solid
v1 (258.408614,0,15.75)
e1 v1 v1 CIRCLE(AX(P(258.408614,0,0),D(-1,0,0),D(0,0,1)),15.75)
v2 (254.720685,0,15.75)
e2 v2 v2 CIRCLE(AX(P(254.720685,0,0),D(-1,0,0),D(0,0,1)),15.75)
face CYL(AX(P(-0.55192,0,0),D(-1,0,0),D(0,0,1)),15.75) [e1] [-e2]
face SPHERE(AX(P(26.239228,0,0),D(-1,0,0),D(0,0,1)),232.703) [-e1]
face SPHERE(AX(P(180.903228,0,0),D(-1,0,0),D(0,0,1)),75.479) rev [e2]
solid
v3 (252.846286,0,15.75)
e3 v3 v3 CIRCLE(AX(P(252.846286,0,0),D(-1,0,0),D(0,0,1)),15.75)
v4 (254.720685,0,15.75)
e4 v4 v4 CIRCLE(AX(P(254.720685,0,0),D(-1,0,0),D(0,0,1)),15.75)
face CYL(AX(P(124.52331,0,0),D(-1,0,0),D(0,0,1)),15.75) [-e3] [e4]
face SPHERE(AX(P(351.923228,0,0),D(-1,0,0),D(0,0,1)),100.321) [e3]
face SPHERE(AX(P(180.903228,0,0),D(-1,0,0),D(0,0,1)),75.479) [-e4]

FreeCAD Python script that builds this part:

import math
import FreeCAD as App
import Part
import Sketcher
from FreeCAD import Vector

doc = App.newDocument("Part")
body = doc.addObject("PartDesign::Body", "Body")

sketch1 = body.newObject("Sketcher::SketchObject", "Sketch")
sketch1.AttachmentSupport = (doc.getObject("XZ_Plane"), [""])
sketch1.MapMode = "FlatFace"
sketch1.addGeometry([
    Part.ArcOfCircle(Part.Circle(Vector(351.9, 0, 0), Vector(0, 0, 1), 100.3), math.radians(180), math.radians(189.03)),
    Part.LineSegment(Vector(251.6, 0, 0), Vector(256.4, 0, 0)),
    Part.ArcOfCircle(Part.Circle(Vector(180.9, 0, 0), Vector(0, 0, 1), 75.5), math.radians(-12.04), math.radians(0)),
    Part.LineSegment(Vector(254.7, -15.8, 0), Vector(252.8, -15.8, 0)),
], False)
sketch1.addConstraint([
    Sketcher.Constraint("Coincident", 0, 1, 1, 1),
    Sketcher.Constraint("Coincident", 1, 2, 2, 2),
    Sketcher.Constraint("Coincident", 2, 1, 3, 1),
    Sketcher.Constraint("Coincident", 3, 2, 0, 2),
    Sketcher.Constraint("Horizontal", 1),
    Sketcher.Constraint("Horizontal", 3),
    Sketcher.Constraint("PointOnObject", 0, 3, -1),
    Sketcher.Constraint("PointOnObject", 2, 3, -1),
    Sketcher.Constraint("PointOnObject", 0, 1, -1),
    Sketcher.Constraint("Radius", 0, 100.321),
    Sketcher.Constraint("Radius", 2, 75.479),
    Sketcher.Constraint("DistanceX", 1, 1, 1, 2, 4.78),
    Sketcher.Constraint("DistanceY", 2, 1, -1, 1, 15.75),
    Sketcher.Constraint("DistanceX", -1, 1, 0, 3, 351.923228),
])
revolution = body.newObject("PartDesign::Revolution", "Revolution")
revolution.Profile = sketch1
revolution.ReferenceAxis = (sketch1, ["H_Axis"])
revolution.Angle = 360
body2 = doc.addObject("PartDesign::Body", "Body001")

sketch2 = body2.newObject("Sketcher::SketchObject", "Sketch001")
sketch2.AttachmentSupport = (doc.getObject("XZ_Plane001"), [""])
sketch2.MapMode = "FlatFace"
sketch2.addGeometry([
    Part.LineSegment(Vector(258.4, -15.8, 0), Vector(254.7, -15.8, 0)),
    Part.ArcOfCircle(Part.Circle(Vector(180.9, 0, 0), Vector(0, 0, 1), 75.5), math.radians(-12.04), math.radians(0)),
    Part.LineSegment(Vector(256.4, 0, 0), Vector(258.9, 0, 0)),
    Part.ArcOfCircle(Part.Circle(Vector(26.2, 0, 0), Vector(0, 0, 1), 232.7), math.radians(-3.88), math.radians(0)),
], False)
sketch2.addConstraint([
    Sketcher.Constraint("Coincident", 0, 2, 1, 1),
    Sketcher.Constraint("Coincident", 1, 2, 2, 1),
    Sketcher.Constraint("Coincident", 2, 2, 3, 2),
    Sketcher.Constraint("Coincident", 3, 1, 0, 1),
    Sketcher.Constraint("Horizontal", 0),
    Sketcher.Constraint("Horizontal", 2),
    Sketcher.Constraint("PointOnObject", 1, 3, -1),
    Sketcher.Constraint("PointOnObject", 3, 3, -1),
    Sketcher.Constraint("PointOnObject", 1, 2, -1),
    Sketcher.Constraint("Radius", 1, 75.479),
    Sketcher.Constraint("Radius", 3, 232.702999),
    Sketcher.Constraint("DistanceX", 2, 1, 2, 2, 2.56),
    Sketcher.Constraint("DistanceY", 0, 2, -1, 1, 15.75),
    Sketcher.Constraint("DistanceX", -1, 1, 1, 3, 180.903228),
])
revolution2 = body2.newObject("PartDesign::Revolution", "Revolution001")
revolution2.Profile = sketch2
revolution2.ReferenceAxis = (sketch2, ["H_Axis"])
revolution2.Angle = 360

doc.recompute()
